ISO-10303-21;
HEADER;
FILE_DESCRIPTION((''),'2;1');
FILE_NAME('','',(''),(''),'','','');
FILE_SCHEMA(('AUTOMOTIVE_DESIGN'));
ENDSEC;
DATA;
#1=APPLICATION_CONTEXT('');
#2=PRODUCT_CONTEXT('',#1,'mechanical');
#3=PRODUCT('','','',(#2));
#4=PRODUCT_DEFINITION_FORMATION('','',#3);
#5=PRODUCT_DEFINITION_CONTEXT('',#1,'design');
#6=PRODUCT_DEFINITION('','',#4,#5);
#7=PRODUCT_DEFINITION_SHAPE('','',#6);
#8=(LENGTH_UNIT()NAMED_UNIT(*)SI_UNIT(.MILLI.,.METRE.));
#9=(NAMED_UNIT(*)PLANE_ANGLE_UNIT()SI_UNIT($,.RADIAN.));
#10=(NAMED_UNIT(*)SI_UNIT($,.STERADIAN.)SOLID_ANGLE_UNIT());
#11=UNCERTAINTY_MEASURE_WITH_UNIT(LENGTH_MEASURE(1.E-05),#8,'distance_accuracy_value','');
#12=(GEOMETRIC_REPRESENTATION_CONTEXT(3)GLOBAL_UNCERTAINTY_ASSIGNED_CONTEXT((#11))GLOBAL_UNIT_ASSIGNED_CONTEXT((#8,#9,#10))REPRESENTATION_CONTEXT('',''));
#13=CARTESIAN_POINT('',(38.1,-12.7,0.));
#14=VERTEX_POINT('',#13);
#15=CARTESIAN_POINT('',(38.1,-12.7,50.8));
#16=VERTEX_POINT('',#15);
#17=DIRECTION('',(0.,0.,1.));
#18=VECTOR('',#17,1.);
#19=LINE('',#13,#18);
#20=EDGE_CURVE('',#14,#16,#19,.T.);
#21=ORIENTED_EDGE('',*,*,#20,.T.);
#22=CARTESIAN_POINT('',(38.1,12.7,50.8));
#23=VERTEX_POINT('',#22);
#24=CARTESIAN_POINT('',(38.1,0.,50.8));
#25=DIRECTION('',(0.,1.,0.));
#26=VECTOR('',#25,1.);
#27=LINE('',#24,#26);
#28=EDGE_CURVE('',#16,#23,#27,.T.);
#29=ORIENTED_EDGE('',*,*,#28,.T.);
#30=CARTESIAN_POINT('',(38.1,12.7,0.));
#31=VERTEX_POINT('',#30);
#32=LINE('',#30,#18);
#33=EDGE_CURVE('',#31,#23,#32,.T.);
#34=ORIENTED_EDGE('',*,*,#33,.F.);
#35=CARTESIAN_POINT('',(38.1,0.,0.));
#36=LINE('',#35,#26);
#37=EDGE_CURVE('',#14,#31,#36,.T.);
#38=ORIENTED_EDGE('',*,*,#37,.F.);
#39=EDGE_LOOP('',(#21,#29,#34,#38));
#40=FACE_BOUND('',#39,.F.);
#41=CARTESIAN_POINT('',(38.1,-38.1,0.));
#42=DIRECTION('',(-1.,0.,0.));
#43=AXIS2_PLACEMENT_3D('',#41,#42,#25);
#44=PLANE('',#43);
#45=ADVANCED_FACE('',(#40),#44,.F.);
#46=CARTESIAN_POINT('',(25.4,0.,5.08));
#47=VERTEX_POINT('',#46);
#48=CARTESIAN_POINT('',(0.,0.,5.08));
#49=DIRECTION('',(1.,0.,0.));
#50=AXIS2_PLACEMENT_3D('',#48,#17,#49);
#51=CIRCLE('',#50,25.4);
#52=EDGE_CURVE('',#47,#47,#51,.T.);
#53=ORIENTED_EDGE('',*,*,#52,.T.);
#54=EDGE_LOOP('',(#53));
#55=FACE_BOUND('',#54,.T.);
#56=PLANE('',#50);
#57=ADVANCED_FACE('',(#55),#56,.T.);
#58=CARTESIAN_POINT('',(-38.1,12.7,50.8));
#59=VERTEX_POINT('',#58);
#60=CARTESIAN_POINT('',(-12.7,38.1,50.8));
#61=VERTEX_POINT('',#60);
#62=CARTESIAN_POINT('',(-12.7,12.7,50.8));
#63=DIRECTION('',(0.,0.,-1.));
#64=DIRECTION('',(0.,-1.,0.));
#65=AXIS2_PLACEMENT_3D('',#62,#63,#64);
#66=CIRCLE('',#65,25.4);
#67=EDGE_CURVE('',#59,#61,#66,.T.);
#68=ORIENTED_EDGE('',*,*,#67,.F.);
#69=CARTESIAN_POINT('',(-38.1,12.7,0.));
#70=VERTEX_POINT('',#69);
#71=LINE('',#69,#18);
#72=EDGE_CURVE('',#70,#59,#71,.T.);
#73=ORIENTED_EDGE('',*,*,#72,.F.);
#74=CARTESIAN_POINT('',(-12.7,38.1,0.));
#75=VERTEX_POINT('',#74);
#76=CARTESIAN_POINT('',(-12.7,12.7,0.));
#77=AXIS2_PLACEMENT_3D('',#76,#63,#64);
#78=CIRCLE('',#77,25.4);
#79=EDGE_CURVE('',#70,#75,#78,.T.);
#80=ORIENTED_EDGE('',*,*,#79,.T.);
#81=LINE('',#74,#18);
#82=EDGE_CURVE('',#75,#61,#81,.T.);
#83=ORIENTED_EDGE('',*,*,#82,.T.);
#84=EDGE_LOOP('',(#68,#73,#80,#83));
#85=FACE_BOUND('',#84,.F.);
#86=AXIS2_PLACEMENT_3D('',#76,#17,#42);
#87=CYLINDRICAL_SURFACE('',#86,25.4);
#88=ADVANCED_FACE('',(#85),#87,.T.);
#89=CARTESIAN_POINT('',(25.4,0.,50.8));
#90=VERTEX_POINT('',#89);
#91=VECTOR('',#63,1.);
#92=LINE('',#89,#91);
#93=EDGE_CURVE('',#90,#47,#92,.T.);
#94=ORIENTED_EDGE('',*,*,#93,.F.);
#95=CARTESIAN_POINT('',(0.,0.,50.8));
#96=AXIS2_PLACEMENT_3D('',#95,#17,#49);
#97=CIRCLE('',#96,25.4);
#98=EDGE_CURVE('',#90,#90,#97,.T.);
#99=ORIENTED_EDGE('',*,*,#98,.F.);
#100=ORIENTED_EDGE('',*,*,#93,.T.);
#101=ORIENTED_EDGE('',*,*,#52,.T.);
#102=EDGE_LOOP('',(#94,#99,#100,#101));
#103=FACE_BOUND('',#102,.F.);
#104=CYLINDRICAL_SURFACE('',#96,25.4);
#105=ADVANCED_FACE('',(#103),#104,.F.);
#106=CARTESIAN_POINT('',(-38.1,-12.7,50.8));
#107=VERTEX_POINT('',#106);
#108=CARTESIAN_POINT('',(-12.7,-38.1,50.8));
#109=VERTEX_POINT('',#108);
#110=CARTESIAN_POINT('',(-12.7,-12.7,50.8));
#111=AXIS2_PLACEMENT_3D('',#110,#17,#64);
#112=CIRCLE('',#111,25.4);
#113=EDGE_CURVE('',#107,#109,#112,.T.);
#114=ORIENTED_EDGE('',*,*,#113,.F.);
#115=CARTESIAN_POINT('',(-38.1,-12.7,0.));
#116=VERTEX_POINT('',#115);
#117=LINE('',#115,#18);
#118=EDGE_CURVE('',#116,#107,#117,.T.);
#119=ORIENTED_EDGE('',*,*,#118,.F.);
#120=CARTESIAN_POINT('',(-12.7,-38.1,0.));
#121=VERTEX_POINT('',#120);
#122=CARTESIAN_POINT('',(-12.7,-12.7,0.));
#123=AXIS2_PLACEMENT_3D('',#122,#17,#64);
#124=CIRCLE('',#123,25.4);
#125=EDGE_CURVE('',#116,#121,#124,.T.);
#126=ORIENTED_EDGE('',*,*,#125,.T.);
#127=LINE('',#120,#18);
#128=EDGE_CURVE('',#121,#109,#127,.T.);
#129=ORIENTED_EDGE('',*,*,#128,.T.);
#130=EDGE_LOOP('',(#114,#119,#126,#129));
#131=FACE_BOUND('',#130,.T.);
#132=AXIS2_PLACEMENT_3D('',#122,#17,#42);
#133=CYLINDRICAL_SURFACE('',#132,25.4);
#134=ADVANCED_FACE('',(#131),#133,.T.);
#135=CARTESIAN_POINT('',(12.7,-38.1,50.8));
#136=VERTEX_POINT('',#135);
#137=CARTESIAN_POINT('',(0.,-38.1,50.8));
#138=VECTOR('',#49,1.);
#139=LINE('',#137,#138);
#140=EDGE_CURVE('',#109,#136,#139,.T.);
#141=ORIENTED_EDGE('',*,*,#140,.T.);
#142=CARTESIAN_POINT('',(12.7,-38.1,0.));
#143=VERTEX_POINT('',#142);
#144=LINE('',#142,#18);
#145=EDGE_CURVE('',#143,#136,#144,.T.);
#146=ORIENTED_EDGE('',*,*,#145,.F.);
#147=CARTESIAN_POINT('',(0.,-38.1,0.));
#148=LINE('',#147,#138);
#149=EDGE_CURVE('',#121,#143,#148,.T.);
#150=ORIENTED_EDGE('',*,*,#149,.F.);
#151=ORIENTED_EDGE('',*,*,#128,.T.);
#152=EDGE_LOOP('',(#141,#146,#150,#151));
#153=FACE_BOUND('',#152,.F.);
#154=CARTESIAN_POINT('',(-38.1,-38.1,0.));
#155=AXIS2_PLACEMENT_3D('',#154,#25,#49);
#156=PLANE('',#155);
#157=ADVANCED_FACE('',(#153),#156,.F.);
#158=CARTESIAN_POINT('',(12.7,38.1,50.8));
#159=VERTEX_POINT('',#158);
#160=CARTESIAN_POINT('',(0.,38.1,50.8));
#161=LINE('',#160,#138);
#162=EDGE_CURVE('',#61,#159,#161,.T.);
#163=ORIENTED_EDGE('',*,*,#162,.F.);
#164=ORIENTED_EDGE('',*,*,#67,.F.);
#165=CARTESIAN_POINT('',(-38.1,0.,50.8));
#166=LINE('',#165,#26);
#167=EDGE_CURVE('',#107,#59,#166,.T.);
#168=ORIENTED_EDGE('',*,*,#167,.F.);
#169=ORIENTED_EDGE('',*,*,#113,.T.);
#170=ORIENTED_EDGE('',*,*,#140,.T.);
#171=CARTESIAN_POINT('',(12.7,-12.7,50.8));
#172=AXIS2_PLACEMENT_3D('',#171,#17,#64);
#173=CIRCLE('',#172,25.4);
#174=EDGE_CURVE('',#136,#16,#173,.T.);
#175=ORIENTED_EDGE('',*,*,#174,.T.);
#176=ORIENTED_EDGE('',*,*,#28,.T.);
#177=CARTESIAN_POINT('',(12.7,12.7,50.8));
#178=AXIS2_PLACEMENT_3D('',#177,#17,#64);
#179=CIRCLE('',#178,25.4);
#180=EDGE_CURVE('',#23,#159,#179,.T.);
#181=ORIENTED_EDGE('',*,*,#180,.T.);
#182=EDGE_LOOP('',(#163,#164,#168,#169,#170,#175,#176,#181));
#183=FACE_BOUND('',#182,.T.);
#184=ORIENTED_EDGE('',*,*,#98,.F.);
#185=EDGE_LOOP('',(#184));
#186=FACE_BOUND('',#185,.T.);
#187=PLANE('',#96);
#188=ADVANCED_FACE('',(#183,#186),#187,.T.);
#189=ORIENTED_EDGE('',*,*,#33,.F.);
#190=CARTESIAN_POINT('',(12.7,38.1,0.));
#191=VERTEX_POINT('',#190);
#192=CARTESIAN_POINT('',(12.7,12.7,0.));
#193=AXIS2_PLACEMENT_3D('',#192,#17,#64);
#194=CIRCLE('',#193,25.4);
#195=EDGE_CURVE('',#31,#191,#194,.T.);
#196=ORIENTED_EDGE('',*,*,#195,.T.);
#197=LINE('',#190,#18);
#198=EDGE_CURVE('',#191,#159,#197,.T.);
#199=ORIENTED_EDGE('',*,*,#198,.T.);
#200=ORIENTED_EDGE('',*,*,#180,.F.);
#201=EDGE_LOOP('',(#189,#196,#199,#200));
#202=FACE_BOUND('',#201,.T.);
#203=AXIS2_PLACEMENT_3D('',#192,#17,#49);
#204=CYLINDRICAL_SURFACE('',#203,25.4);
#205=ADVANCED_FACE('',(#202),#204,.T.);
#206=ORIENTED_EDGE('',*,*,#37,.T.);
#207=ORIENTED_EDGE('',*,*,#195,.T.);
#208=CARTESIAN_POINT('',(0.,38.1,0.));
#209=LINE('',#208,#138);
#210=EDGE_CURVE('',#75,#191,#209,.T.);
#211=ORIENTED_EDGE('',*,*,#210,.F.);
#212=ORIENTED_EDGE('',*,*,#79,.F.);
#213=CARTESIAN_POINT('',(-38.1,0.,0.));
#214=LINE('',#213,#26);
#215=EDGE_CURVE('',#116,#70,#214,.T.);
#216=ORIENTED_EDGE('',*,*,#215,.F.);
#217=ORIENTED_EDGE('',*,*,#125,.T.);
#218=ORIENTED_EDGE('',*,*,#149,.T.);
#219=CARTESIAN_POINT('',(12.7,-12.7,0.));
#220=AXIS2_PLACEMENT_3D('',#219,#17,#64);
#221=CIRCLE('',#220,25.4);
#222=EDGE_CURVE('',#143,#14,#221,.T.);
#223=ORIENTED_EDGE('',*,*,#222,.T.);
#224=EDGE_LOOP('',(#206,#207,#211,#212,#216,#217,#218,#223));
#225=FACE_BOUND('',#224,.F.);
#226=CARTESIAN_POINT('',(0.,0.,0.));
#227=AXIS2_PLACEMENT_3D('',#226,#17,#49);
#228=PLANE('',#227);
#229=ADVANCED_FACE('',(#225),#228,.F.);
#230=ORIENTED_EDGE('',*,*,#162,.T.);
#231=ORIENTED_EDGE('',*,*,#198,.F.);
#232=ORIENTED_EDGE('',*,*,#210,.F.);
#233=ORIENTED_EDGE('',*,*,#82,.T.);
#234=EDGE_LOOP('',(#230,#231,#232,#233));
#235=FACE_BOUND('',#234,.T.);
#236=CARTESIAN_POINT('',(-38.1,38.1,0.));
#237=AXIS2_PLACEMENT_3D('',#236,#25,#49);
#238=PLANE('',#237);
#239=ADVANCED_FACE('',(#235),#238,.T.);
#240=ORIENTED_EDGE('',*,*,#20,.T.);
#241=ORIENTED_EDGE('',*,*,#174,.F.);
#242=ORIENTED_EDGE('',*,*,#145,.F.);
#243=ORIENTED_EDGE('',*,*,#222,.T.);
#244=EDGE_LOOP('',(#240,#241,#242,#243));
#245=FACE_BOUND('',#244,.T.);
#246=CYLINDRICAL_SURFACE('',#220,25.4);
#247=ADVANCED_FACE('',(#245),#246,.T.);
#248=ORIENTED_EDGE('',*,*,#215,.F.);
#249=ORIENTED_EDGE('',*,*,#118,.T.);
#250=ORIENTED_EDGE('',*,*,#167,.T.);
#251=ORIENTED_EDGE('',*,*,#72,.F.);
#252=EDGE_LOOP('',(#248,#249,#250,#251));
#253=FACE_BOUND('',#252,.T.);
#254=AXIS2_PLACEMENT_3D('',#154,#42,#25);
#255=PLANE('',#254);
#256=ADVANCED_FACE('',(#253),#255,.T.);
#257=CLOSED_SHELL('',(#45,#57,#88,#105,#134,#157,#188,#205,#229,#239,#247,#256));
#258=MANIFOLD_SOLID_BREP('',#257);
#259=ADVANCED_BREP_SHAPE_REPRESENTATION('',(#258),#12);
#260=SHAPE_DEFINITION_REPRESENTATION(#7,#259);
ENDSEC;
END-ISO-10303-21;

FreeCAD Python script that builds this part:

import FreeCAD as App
import Part
import Sketcher
from FreeCAD import Vector
Q = App.Units.Quantity


def edges_at(feature, points):
    """Names of the edges that pass closest to the given points."""
    edges = feature.Shape.Edges
    near = lambda p: min(range(len(edges)), key=lambda i: edges[i].distToShape(Part.Vertex(*p))[0])
    return sorted({f"Edge{near(p) + 1}" for p in points})


def add_polygon(sketch, points):
    """Adds a closed chain of lines whose ends are joined by coincident constraints."""
    first, n = sketch.GeometryCount, len(points)
    for a, b in zip(points, points[1:] + points[:1]):
        sketch.addGeometry(Part.LineSegment(App.Vector(*a, 0), App.Vector(*b, 0)), False)
    for i in range(n):
        sketch.addConstraint(Sketcher.Constraint("Coincident", first + i, 2, first + (i + 1) % n, 1))

doc = App.newDocument("Part")
body = doc.addObject("PartDesign::Body", "Body")

# Sketch on XY plane
sketch1 = body.newObject("Sketcher::SketchObject", "Sketch")
sketch1.AttachmentSupport = (doc.getObject("XY_Plane"), [""])
sketch1.MapMode = "FlatFace"
add_polygon(sketch1, [(-38, 38), (-38, -38), (38, -38), (38, 38)])  # lines 0-3
sketch1.addConstraint(Sketcher.Constraint("Vertical", 0))
sketch1.addConstraint(Sketcher.Constraint("Horizontal", 1))
sketch1.addConstraint(Sketcher.Constraint("Vertical", 2))
sketch1.addConstraint(Sketcher.Constraint("Horizontal", 3))
sketch1.addConstraint(Sketcher.Constraint("Symmetric", 0, 2, 2, 2, -1, 1))
sketch1.addConstraint(Sketcher.Constraint("Equal", 3, 0))
sketch1.addConstraint(Sketcher.Constraint("DistanceX", 1, 1, 1, 2, Q("3 in")))
pad1 = body.newObject("PartDesign::Pad", "Pad")
pad1.Profile = sketch1
pad1.Length = Q("2 in")
doc.recompute()

fillet = body.newObject("PartDesign::Fillet", "Fillet")
fillet.Base = (pad1, edges_at(pad1, [
    (-38.1, -38.1, 25.4),
    (38.1, -38.1, 25.4),
    (-38.1, 38.1, 25.4),
    (38.1, 38.1, 25.4),
]))
fillet.Radius = Q("1 in")

# Sketch on XY plane
sketch2 = body.newObject("Sketcher::SketchObject", "Sketch001")
sketch2.AttachmentSupport = (doc.getObject("XY_Plane"), [""])
sketch2.MapMode = "FlatFace"
sketch2.AttachmentOffset = App.Placement(Vector(0, 0, 2 * 25.4), App.Rotation())
sketch2.addGeometry(Part.Circle(Vector(0, 0, 0), Vector(0, 0, 1), 25), False)
sketch2.addConstraint(Sketcher.Constraint("Coincident", 0, 3, -1, 1))
sketch2.addConstraint(Sketcher.Constraint("Diameter", 0, Q("2 in")))
pocket1 = body.newObject("PartDesign::Pocket", "Pocket")
pocket1.Profile = sketch2
pocket1.Length = Q("1.8 in")

doc.recompute()
